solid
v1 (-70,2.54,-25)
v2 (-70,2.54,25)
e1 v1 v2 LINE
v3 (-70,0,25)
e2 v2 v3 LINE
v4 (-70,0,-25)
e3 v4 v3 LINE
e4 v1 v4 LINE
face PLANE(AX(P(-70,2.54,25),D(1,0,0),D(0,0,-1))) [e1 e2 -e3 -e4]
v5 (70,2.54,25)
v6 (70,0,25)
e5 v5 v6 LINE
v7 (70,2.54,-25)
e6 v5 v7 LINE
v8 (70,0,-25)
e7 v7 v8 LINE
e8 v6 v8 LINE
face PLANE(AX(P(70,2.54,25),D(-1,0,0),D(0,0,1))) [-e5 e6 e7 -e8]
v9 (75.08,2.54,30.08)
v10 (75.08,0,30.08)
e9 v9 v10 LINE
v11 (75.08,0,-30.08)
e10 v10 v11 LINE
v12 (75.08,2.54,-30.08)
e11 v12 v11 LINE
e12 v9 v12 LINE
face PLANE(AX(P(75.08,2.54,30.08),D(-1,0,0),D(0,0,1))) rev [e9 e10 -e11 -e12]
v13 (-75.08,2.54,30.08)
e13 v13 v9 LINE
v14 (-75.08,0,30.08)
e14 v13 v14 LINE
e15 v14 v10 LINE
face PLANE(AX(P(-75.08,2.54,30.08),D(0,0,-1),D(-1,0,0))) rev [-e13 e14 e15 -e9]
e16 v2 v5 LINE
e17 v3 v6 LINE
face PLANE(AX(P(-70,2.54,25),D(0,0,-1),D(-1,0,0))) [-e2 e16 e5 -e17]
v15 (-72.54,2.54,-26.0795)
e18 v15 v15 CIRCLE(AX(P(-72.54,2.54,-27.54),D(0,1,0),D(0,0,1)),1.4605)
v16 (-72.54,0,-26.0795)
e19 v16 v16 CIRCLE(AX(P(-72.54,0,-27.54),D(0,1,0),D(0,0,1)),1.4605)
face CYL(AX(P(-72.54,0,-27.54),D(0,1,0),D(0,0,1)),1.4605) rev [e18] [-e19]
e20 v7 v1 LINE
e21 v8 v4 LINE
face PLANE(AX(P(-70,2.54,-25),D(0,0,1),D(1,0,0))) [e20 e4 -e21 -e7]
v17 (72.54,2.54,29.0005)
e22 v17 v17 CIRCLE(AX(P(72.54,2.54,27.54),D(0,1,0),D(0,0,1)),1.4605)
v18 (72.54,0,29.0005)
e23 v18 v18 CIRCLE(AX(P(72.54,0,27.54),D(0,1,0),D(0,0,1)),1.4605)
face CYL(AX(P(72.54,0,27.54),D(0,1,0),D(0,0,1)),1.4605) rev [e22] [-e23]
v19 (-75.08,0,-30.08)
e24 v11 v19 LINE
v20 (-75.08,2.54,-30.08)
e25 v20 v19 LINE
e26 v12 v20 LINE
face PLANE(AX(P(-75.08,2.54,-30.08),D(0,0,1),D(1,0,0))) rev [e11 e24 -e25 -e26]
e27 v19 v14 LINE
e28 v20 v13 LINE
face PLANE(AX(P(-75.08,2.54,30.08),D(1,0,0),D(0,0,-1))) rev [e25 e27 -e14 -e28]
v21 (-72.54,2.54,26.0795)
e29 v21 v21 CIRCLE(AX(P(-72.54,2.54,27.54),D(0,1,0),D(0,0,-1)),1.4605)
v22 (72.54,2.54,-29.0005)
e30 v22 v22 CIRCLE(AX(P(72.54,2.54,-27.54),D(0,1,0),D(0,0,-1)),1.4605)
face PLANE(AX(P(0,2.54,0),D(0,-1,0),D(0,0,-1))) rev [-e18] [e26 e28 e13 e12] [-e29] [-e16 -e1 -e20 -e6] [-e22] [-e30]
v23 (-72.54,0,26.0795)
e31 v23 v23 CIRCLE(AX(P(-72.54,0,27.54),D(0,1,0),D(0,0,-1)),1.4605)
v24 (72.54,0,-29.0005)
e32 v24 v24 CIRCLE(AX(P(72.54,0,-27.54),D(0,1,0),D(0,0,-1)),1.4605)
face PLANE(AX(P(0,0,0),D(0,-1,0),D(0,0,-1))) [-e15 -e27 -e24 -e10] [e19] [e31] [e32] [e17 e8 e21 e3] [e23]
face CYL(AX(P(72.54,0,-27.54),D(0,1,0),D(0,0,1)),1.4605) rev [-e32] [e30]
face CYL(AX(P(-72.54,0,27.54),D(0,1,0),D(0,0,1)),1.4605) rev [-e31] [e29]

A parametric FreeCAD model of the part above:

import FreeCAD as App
import Part
import Sketcher


def add_polygon(sketch, points):
    """Adds a closed chain of lines whose ends are joined by coincident constraints."""
    first, n = sketch.GeometryCount, len(points)
    for a, b in zip(points, points[1:] + points[:1]):
        sketch.addGeometry(Part.LineSegment(App.Vector(*a, 0), App.Vector(*b, 0)), False)
    for i in range(n):
        sketch.addConstraint(Sketcher.Constraint("Coincident", first + i, 2, first + (i + 1) % n, 1))

doc = App.newDocument("Part")
body = doc.addObject("PartDesign::Body", "Body")

# Sketch on XZ plane
sketch1 = body.newObject("Sketcher::SketchObject", "Sketch")
sketch1.AttachmentSupport = (doc.getObject("XZ_Plane"), [""])
sketch1.MapMode = "FlatFace"
add_polygon(sketch1, [(-75, -30), (-75, 30), (75, 30), (75, -30)])  # lines 0-3
add_polygon(sketch1, [(70, 25), (-70, 25), (-70, -25), (70, -25)])  # lines 4-7
sketch1.addConstraint([
    Sketcher.Constraint("Vertical", 0),
    Sketcher.Constraint("Horizontal", 1),
    Sketcher.Constraint("Vertical", 2),
    Sketcher.Constraint("Horizontal", 3),
    Sketcher.Constraint("Horizontal", 4),
    Sketcher.Constraint("Vertical", 5),
    Sketcher.Constraint("Horizontal", 6),
    Sketcher.Constraint("Vertical", 7),
    Sketcher.Constraint("Symmetric", 0, 2, 2, 2, -1, 1),
    Sketcher.Constraint("Symmetric", 4, 2, 6, 2, -1, 1),
    Sketcher.Constraint("DistanceX", 4, 2, 4, 1, 140.0),
    Sketcher.Constraint("DistanceY", 5, 2, 5, 1, 50.0),
    Sketcher.Constraint("DistanceX", 1, 1, 1, 2, 150.16),
    Sketcher.Constraint("DistanceY", 0, 1, 0, 2, 60.16),
])
pad1 = body.newObject("PartDesign::Pad", "Pad")
pad1.Profile = sketch1
pad1.Length = 2.54
pad1.Reversed = True

# Sketch on XZ plane
sketch2 = body.newObject("Sketcher::SketchObject", "Sketch001")
sketch2.AttachmentSupport = (doc.getObject("XZ_Plane"), [""])
sketch2.MapMode = "FlatFace"
sketch2.AttachmentOffset = App.Placement(App.Vector(0, 0, -2.54), App.Rotation())
sketch2.addGeometry([
    Part.Circle(App.Vector(72.5, 27.5, 0), App.Vector(0, 0, 1), 1.5),
    Part.Circle(App.Vector(72.5, -27.5, 0), App.Vector(0, 0, 1), 1.5),
    Part.Circle(App.Vector(-72.5, -27.5, 0), App.Vector(0, 0, 1), 1.5),
    Part.Circle(App.Vector(-72.5, 27.5, 0), App.Vector(0, 0, 1), 1.5),
], False)
sketch2.addConstraint([
    Sketcher.Constraint("Equal", 0, 1),
    Sketcher.Constraint("Equal", 1, 2),
    Sketcher.Constraint("Equal", 2, 3),
    Sketcher.Constraint("Symmetric", 0, 3, 2, 3, -1, 1),
    Sketcher.Constraint("Symmetric", 1, 3, 3, 3, -1, 1),
    Sketcher.Constraint("Symmetric", 1, 3, 2, 3, -2),
    Sketcher.Constraint("Diameter", 0, 2.921),
    Sketcher.Constraint("DistanceX", -1, 1, 0, 3, 72.54),
    Sketcher.Constraint("DistanceY", -1, 1, 0, 3, 27.54),
])
pocket1 = body.newObject("PartDesign::Pocket", "Pocket")
pocket1.Profile = sketch2
pocket1.Length = 2.54
pocket1.Reversed = True

doc.recompute()
